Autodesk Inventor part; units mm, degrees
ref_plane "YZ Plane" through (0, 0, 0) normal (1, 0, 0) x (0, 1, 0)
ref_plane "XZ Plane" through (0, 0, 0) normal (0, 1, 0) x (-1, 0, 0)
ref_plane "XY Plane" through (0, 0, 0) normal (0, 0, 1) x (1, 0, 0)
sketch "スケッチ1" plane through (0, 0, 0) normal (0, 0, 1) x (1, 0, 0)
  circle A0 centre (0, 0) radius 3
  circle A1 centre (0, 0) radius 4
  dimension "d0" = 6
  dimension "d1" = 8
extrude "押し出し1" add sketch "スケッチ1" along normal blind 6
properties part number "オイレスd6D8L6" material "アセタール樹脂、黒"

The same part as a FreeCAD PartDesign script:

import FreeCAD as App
import Part
import Sketcher
from FreeCAD import Vector

doc = App.newDocument("Part")
body = doc.addObject("PartDesign::Body", "Body")

sketch1 = body.newObject("Sketcher::SketchObject", "Sketch")
sketch1.AttachmentSupport = (doc.getObject("XY_Plane"), [""])
sketch1.MapMode = "FlatFace"
sketch1.addGeometry([
    Part.Circle(Vector(0, 0, 0), Vector(0, 0, 1), 4),
    Part.Circle(Vector(0, 0, 0), Vector(0, 0, 1), 3),
], False)
sketch1.addConstraint([
    Sketcher.Constraint("Coincident", 0, 3, -1, 1),
    Sketcher.Constraint("Coincident", 1, 3, -1, 1),
    Sketcher.Constraint("Diameter", 0, 8.0),
    Sketcher.Constraint("Diameter", 1, 6.0),
])
pad1 = body.newObject("PartDesign::Pad", "Pad")
pad1.Profile = sketch1
pad1.Length = 6

doc.recompute()
